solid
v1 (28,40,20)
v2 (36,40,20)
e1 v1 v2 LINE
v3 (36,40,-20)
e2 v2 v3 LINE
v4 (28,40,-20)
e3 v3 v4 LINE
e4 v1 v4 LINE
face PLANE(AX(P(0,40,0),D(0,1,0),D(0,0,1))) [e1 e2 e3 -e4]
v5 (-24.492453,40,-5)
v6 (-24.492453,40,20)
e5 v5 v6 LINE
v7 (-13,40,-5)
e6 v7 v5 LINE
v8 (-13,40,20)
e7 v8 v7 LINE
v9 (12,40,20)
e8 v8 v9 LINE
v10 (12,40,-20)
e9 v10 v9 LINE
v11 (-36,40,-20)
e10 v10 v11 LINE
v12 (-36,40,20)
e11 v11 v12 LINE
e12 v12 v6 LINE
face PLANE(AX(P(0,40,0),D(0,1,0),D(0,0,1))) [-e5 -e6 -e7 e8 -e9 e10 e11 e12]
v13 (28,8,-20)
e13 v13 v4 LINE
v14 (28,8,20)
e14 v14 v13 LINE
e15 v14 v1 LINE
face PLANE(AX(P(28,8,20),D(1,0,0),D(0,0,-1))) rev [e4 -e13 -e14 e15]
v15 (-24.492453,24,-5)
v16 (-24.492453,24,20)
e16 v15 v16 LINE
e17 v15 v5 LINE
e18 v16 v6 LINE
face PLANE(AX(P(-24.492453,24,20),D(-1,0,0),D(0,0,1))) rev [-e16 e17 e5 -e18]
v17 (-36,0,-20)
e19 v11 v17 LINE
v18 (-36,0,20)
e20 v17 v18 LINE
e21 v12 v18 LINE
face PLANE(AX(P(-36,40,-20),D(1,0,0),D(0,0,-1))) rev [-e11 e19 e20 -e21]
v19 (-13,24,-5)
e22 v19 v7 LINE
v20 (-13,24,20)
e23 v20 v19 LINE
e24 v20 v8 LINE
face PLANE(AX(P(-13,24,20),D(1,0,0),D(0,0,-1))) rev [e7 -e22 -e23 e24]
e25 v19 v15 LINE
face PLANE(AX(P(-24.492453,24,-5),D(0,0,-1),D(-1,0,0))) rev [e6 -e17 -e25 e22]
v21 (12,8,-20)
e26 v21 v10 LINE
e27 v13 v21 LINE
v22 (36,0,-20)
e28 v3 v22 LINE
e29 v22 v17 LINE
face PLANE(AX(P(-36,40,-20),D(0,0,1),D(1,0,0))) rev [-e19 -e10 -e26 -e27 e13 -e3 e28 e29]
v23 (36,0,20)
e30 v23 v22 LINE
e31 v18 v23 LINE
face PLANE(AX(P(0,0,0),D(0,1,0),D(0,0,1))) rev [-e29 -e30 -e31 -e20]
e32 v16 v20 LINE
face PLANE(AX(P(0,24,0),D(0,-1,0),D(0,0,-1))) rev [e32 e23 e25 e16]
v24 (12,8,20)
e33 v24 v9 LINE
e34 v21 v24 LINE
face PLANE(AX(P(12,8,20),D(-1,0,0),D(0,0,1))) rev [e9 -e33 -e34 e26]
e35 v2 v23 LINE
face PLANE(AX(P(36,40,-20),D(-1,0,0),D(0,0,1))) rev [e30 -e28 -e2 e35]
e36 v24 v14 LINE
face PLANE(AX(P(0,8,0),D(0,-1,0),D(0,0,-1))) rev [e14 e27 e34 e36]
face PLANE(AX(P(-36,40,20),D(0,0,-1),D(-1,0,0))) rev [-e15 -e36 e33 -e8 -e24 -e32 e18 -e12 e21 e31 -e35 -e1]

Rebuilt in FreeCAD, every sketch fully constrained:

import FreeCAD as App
import Part
import Sketcher

V = App.Vector
Q = App.Units.Quantity

doc = App.newDocument("Part")
body = doc.addObject("PartDesign::Body", "Body")

# Sketch on XZ plane
sketch1 = doc.addObject("Sketcher::SketchObject", "Sketch")
body.addObject(sketch1)
sketch1.AttachmentSupport = (doc.XZ_Plane, [""])
sketch1.MapMode = "FlatFace"
sketch1.addGeometry([
    Part.LineSegment(V(-36, -20, 0), V(-36, 20, 0)),
    Part.LineSegment(V(-36, 20, 0), V(36, 20, 0)),
    Part.LineSegment(V(36, 20, 0), V(36, -20, 0)),
    Part.LineSegment(V(36, -20, 0), V(-36, -20, 0)),
], False)
sketch1.addConstraint([
    Sketcher.Constraint("Coincident", 0, 2, 1, 1),
    Sketcher.Constraint("Coincident", 1, 2, 2, 1),
    Sketcher.Constraint("Coincident", 2, 2, 3, 1),
    Sketcher.Constraint("Coincident", 3, 2, 0, 1),
    Sketcher.Constraint("Vertical", 0),
    Sketcher.Constraint("Horizontal", 1),
    Sketcher.Constraint("Vertical", 2),
    Sketcher.Constraint("Horizontal", 3),
    Sketcher.Constraint("Symmetric", 0, 2, 2, 2, -1, 1),
    Sketcher.Constraint("DistanceX", 1, 1, 1, 2, Q("72 mm")),
    Sketcher.Constraint("DistanceY", 0, 1, 0, 2, Q("40 mm")),
])
pad1 = doc.addObject("PartDesign::Pad", "Pad")
body.addObject(pad1)
pad1.Profile = sketch1
pad1.Length = 40
pad1.Reversed = True

# Sketch on XZ plane
sketch2 = doc.addObject("Sketcher::SketchObject", "Sketch001")
body.addObject(sketch2)
sketch2.AttachmentSupport = (doc.XZ_Plane, [""])
sketch2.MapMode = "FlatFace"
sketch2.AttachmentOffset = App.Placement(V(0, 0, -40), App.Rotation())
sketch2.addGeometry([
    Part.LineSegment(V(12, -20, 0), V(12, 20, 0)),
    Part.LineSegment(V(12, 20, 0), V(28, 20, 0)),
    Part.LineSegment(V(28, 20, 0), V(28, -20, 0)),
    Part.LineSegment(V(28, -20, 0), V(12, -20, 0)),
], False)
sketch2.addConstraint([
    Sketcher.Constraint("Coincident", 0, 2, 1, 1),
    Sketcher.Constraint("Coincident", 1, 2, 2, 1),
    Sketcher.Constraint("Coincident", 2, 2, 3, 1),
    Sketcher.Constraint("Coincident", 3, 2, 0, 1),
    Sketcher.Constraint("Vertical", 0),
    Sketcher.Constraint("Horizontal", 1),
    Sketcher.Constraint("Vertical", 2),
    Sketcher.Constraint("Horizontal", 3),
    Sketcher.Constraint("DistanceX", 1, 1, 1, 2, Q("16 mm")),
    Sketcher.Constraint("DistanceY", 0, 1, 0, 2, Q("40 mm")),
    Sketcher.Constraint("DistanceX", -1, 1, 0, 2, Q("12 mm")),
    Sketcher.Constraint("DistanceY", -1, 1, 0, 2, Q("20 mm")),
])
pocket1 = doc.addObject("PartDesign::Pocket", "Pocket")
body.addObject(pocket1)
pocket1.Profile = sketch2
pocket1.Length = 32
pocket1.Reversed = True

# Sketch on XZ plane
sketch3 = doc.addObject("Sketcher::SketchObject", "Sketch002")
body.addObject(sketch3)
sketch3.AttachmentSupport = (doc.XZ_Plane, [""])
sketch3.MapMode = "FlatFace"
sketch3.AttachmentOffset = App.Placement(V(0, 0, -40), App.Rotation())
sketch3.addGeometry([
    Part.LineSegment(V(-24.492453, -5, 0), V(-24.492453, 20, 0)),
    Part.LineSegment(V(-24.492453, 20, 0), V(-13, 20, 0)),
    Part.LineSegment(V(-13, 20, 0), V(-13, -5, 0)),
    Part.LineSegment(V(-13, -5, 0), V(-24.492453, -5, 0)),
], False)
sketch3.addConstraint([
    Sketcher.Constraint("Coincident", 0, 2, 1, 1),
    Sketcher.Constraint("Coincident", 1, 2, 2, 1),
    Sketcher.Constraint("Coincident", 2, 2, 3, 1),
    Sketcher.Constraint("Coincident", 3, 2, 0, 1),
    Sketcher.Constraint("Vertical", 0),
    Sketcher.Constraint("Horizontal", 1),
    Sketcher.Constraint("Vertical", 2),
    Sketcher.Constraint("Horizontal", 3),
    Sketcher.Constraint("DistanceY", 0, 1, 0, 2, Q("25 mm")),
    Sketcher.Constraint("DistanceY", -1, 1, 0, 2, Q("20 mm")),
    Sketcher.Constraint("DistanceX", 1, 2, -1, 1, Q("13 mm")),
    Sketcher.Constraint("DistanceX", 1, 1, 1, 2, Q("11.492453 mm")),
])
pocket2 = doc.addObject("PartDesign::Pocket", "Pocket001")
body.addObject(pocket2)
pocket2.Profile = sketch3
pocket2.Length = 16
pocket2.Reversed = True

doc.recompute()
